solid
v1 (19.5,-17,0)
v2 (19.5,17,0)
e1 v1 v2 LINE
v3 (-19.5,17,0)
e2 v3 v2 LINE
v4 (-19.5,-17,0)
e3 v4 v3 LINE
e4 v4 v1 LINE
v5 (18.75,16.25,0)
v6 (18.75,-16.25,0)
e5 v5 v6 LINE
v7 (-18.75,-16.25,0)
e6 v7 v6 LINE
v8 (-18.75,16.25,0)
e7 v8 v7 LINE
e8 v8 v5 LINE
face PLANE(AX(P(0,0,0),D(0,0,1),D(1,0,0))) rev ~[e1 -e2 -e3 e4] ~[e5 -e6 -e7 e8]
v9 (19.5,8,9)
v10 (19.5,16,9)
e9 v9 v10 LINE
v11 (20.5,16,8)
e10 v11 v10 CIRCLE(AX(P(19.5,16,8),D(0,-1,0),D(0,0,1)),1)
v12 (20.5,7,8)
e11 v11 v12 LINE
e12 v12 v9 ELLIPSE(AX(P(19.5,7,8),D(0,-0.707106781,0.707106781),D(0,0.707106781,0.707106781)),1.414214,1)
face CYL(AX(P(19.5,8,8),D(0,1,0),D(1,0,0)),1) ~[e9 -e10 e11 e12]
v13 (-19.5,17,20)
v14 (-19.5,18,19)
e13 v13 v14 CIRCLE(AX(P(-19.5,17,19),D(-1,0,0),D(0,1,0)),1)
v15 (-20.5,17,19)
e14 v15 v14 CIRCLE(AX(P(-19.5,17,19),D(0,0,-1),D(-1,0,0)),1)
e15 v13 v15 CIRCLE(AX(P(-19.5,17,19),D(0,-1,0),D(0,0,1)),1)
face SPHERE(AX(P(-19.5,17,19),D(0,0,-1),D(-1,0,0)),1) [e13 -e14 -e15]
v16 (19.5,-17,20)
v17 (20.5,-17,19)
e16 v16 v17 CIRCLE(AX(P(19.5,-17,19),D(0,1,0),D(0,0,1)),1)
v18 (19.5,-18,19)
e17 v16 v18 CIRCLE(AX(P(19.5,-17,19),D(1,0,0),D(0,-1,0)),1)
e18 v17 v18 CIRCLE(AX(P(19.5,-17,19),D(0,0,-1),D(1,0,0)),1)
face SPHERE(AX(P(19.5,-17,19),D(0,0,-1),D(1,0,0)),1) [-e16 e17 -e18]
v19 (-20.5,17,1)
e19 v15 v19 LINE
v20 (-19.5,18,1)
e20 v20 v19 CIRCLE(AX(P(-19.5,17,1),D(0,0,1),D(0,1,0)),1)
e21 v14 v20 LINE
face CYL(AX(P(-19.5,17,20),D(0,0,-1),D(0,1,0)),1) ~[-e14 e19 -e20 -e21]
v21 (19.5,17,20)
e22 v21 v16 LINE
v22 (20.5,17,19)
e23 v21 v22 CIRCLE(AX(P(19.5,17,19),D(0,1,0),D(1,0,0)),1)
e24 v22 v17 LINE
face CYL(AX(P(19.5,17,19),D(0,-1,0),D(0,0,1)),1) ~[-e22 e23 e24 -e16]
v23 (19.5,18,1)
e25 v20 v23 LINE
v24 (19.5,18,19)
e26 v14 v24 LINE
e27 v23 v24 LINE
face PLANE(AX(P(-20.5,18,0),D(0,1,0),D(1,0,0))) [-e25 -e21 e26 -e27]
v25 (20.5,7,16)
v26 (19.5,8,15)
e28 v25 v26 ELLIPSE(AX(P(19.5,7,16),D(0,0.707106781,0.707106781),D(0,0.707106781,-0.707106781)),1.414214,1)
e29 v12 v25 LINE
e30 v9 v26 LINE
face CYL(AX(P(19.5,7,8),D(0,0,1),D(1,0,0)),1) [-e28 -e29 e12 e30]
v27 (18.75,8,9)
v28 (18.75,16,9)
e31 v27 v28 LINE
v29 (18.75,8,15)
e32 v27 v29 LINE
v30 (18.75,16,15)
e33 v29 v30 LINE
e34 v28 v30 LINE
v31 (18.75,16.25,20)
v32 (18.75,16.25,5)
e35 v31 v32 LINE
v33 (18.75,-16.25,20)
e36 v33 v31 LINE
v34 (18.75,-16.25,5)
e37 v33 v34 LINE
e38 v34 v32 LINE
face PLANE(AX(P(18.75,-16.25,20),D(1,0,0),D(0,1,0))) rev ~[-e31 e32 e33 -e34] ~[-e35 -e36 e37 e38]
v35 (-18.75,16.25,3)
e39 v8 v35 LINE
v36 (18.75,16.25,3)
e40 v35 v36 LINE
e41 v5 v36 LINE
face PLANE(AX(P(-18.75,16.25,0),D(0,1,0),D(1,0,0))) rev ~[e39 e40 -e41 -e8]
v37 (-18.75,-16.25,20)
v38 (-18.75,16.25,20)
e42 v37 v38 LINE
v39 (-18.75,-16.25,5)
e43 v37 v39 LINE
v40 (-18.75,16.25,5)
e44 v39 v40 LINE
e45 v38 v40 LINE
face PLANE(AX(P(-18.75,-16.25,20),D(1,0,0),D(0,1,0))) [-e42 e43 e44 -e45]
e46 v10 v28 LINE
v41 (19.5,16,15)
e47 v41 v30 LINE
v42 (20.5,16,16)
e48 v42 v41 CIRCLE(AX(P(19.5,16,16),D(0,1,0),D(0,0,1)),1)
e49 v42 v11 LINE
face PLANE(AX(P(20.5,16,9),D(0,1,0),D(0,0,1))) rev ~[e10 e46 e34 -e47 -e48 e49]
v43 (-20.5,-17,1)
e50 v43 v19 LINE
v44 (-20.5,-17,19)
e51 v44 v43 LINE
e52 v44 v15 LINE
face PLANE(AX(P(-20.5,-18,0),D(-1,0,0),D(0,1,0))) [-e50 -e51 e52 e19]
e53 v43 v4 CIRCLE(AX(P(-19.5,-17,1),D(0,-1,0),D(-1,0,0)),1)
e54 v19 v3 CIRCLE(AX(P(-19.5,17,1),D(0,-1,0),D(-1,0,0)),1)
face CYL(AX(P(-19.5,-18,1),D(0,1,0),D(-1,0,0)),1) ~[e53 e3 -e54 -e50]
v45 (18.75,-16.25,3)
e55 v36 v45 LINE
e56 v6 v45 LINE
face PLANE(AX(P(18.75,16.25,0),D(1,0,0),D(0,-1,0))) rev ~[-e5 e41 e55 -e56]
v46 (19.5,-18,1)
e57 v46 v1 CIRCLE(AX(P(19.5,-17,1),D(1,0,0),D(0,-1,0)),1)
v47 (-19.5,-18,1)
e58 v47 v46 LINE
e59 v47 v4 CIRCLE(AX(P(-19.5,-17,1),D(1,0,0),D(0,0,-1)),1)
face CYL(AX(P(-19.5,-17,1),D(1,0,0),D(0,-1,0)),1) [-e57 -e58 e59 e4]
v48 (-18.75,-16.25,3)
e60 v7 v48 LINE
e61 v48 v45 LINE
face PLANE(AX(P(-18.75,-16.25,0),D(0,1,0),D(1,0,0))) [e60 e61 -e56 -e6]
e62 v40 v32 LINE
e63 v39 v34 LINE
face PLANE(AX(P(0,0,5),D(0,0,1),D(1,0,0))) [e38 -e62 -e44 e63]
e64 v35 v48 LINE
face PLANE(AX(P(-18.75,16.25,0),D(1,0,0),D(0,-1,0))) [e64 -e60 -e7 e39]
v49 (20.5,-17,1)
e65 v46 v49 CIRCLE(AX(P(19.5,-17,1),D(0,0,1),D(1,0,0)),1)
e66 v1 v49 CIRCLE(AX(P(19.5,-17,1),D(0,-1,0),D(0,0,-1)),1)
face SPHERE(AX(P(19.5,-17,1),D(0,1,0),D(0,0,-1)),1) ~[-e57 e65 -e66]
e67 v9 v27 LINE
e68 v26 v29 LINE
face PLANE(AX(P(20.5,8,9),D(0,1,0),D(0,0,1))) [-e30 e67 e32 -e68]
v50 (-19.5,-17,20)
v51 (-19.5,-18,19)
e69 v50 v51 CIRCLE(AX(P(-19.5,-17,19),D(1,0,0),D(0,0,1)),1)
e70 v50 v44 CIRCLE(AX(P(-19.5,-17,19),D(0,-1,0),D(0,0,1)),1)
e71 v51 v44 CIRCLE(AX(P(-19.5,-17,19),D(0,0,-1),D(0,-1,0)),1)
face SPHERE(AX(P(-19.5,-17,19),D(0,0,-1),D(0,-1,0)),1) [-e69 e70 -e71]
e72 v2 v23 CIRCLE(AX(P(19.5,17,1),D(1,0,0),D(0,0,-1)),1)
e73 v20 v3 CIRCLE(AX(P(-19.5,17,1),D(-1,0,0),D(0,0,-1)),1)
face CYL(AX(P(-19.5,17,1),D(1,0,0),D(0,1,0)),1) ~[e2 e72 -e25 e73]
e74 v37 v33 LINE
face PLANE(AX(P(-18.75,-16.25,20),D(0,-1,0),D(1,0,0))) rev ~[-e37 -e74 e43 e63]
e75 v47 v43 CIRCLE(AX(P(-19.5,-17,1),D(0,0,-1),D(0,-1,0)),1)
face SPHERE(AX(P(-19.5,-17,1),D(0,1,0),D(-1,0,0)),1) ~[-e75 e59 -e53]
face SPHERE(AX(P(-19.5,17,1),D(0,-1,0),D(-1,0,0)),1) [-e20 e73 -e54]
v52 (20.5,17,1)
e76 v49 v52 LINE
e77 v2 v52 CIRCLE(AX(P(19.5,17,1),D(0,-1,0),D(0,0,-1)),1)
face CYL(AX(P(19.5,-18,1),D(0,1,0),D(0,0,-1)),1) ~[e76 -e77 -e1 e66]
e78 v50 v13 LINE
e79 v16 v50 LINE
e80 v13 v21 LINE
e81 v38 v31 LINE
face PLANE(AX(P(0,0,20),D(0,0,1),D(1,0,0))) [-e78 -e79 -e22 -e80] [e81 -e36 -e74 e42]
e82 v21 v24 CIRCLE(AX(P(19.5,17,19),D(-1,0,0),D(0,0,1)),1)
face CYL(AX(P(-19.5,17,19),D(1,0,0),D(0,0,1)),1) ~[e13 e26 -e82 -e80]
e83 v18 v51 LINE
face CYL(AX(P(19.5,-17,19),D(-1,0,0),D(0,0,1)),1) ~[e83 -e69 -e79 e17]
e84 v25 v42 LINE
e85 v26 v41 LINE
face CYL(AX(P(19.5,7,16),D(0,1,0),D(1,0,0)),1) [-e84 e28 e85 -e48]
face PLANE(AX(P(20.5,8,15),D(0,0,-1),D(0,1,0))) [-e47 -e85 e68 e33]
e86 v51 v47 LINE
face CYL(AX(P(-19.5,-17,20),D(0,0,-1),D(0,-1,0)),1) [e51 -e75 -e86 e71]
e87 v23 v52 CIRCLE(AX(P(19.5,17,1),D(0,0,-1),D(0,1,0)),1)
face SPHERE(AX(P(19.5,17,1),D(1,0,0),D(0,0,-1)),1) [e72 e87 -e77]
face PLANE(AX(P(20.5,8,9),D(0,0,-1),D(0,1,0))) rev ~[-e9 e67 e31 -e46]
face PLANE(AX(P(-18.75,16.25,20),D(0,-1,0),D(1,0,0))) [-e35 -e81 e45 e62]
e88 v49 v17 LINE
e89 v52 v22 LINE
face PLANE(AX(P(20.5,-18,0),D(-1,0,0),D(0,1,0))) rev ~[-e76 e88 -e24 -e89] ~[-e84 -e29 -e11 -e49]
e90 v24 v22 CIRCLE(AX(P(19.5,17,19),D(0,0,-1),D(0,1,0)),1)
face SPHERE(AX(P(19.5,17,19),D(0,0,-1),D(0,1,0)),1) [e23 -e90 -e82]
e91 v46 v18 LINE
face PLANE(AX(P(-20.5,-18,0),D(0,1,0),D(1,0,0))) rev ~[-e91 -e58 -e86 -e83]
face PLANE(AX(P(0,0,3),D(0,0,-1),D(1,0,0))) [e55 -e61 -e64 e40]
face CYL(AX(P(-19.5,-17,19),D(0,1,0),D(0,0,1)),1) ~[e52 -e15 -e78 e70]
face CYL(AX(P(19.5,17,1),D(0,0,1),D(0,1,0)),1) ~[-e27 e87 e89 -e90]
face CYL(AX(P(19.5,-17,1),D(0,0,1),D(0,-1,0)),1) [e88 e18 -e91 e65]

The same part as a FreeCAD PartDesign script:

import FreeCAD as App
import Part
import Sketcher

V = App.Vector
Q = App.Units.Quantity


def edges_at(feature, points):
    """Names of the edges that pass closest to the given points."""
    edges = feature.Shape.Edges
    near = lambda p: min(range(len(edges)), key=lambda i: edges[i].distToShape(Part.Vertex(*p))[0])
    return sorted({f"Edge{near(p) + 1}" for p in points})


def add_polygon(sketch, points):
    """Adds a closed chain of lines whose ends are joined by coincident constraints."""
    first, n = sketch.GeometryCount, len(points)
    for a, b in zip(points, points[1:] + points[:1]):
        sketch.addGeometry(Part.LineSegment(App.Vector(*a, 0), App.Vector(*b, 0)), False)
    for i in range(n):
        sketch.addConstraint(Sketcher.Constraint("Coincident", first + i, 2, first + (i + 1) % n, 1))

doc = App.newDocument("Part")
body = doc.addObject("PartDesign::Body", "Body")

sketch1 = body.newObject("Sketcher::SketchObject", "Sketch")
sketch1.AttachmentSupport = (doc.getObject("XY_Plane"), [""])
sketch1.MapMode = "FlatFace"
add_polygon(sketch1, [(-20, 18), (-20, -18), (20, -18), (20, 18)])
sketch1.addConstraint(Sketcher.Constraint("Vertical", 0))
sketch1.addConstraint(Sketcher.Constraint("Horizontal", 1))
sketch1.addConstraint(Sketcher.Constraint("Vertical", 2))
sketch1.addConstraint(Sketcher.Constraint("Horizontal", 3))
sketch1.addConstraint(Sketcher.Constraint("Symmetric", 0, 2, 2, 2, -1, 1))
sketch1.addConstraint(Sketcher.Constraint("DistanceX", 1, 1, 1, 2, Q("41 mm")))
sketch1.addConstraint(Sketcher.Constraint("DistanceY", 0, 2, 0, 1, Q("36 mm")))
pad1 = body.newObject("PartDesign::Pad", "Pad")
pad1.Profile = sketch1
pad1.Length = 20

sketch2 = body.newObject("Sketcher::SketchObject", "Sketch001")
sketch2.AttachmentSupport = (doc.getObject("XY_Plane"), [""])
sketch2.MapMode = "FlatFace"
sketch2.AttachmentOffset = App.Placement(V(0, 0, 20), App.Rotation())
add_polygon(sketch2, [(-19, 16), (-19, -16), (19, -16), (19, 16)])
sketch2.addConstraint(Sketcher.Constraint("Vertical", 0))
sketch2.addConstraint(Sketcher.Constraint("Horizontal", 1))
sketch2.addConstraint(Sketcher.Constraint("Vertical", 2))
sketch2.addConstraint(Sketcher.Constraint("Horizontal", 3))
sketch2.addConstraint(Sketcher.Constraint("Symmetric", 0, 2, 2, 2, -1, 1))
sketch2.addConstraint(Sketcher.Constraint("DistanceX", 1, 1, 1, 2, Q("37.5 mm")))
sketch2.addConstraint(Sketcher.Constraint("DistanceY", 0, 2, 0, 1, Q("32.5 mm")))
pocket1 = body.newObject("PartDesign::Pocket", "Pocket")
pocket1.Profile = sketch2
pocket1.Length = 15

sketch3 = body.newObject("Sketcher::SketchObject", "Sketch002")
sketch3.AttachmentSupport = (doc.getObject("XY_Plane"), [""])
sketch3.MapMode = "FlatFace"
add_polygon(sketch3, [(-19, -16), (-19, 16), (19, 16), (19, -16)])
sketch3.addConstraint(Sketcher.Constraint("Vertical", 0))
sketch3.addConstraint(Sketcher.Constraint("Horizontal", 1))
sketch3.addConstraint(Sketcher.Constraint("Vertical", 2))
sketch3.addConstraint(Sketcher.Constraint("Horizontal", 3))
sketch3.addConstraint(Sketcher.Constraint("Symmetric", 0, 2, 2, 2, -1, 1))
sketch3.addConstraint(Sketcher.Constraint("DistanceX", 1, 1, 1, 2, Q("37.5 mm")))
sketch3.addConstraint(Sketcher.Constraint("DistanceY", 0, 1, 0, 2, Q("32.5 mm")))
pocket2 = body.newObject("PartDesign::Pocket", "Pocket001")
pocket2.Profile = sketch3
pocket2.Length = 3
pocket2.Reversed = True

sketch4 = body.newObject("Sketcher::SketchObject", "Sketch003")
sketch4.AttachmentSupport = (doc.getObject("YZ_Plane"), [""])
sketch4.MapMode = "FlatFace"
sketch4.AttachmentOffset = App.Placement(V(0, 0, 20.5), App.Rotation())
add_polygon(sketch4, [(8, 15), (8, 9), (16, 9), (16, 15)])
sketch4.addConstraint(Sketcher.Constraint("Vertical", 0))
sketch4.addConstraint(Sketcher.Constraint("Horizontal", 1))
sketch4.addConstraint(Sketcher.Constraint("Vertical", 2))
sketch4.addConstraint(Sketcher.Constraint("Horizontal", 3))
sketch4.addConstraint(Sketcher.Constraint("DistanceX", 1, 1, 1, 2, Q("8 mm")))
sketch4.addConstraint(Sketcher.Constraint("DistanceY", 0, 2, 0, 1, Q("6 mm")))
sketch4.addConstraint(Sketcher.Constraint("DistanceX", -1, 1, 0, 2, Q("8 mm")))
sketch4.addConstraint(Sketcher.Constraint("DistanceY", -1, 1, 0, 2, Q("9 mm")))
pocket3 = body.newObject("PartDesign::Pocket", "Pocket002")
pocket3.Profile = sketch4
pocket3.Length = 5
doc.recompute()

fillet = body.newObject("PartDesign::Fillet", "Fillet")
fillet.Base = (pocket3, edges_at(pocket3, [(-20.5, 0, 0)]))
fillet.Radius = 1
doc.recompute()

fillet2 = body.newObject("PartDesign::Fillet", "Fillet001")
fillet2.Base = (fillet, edges_at(fillet, [(0.5, 18, 0)]))
fillet2.Radius = 1
doc.recompute()

fillet3 = body.newObject("PartDesign::Fillet", "Fillet002")
fillet3.Base = (fillet2, edges_at(fillet2, [(20.5, -0.5, 0)]))
fillet3.Radius = 1
doc.recompute()

fillet4 = body.newObject("PartDesign::Fillet", "Fillet003")
fillet4.Base = (fillet3, edges_at(fillet3, [(0, -18, 0)]))
fillet4.Radius = 1
doc.recompute()

fillet5 = body.newObject("PartDesign::Fillet", "Fillet004")
fillet5.Base = (fillet4, edges_at(fillet4, [(-20.5, 0, 20)]))
fillet5.Radius = 1
doc.recompute()

fillet6 = body.newObject("PartDesign::Fillet", "Fillet005")
fillet6.Base = (fillet5, edges_at(fillet5, [(20.5, 12, 9)]))
fillet6.Radius = 1
doc.recompute()

fillet7 = body.newObject("PartDesign::Fillet", "Fillet006")
fillet7.Base = (fillet6, edges_at(fillet6, [(20.5, 8, 11.5)]))
fillet7.Radius = 1
doc.recompute()

fillet8 = body.newObject("PartDesign::Fillet", "Fillet007")
fillet8.Base = (fillet7, edges_at(fillet7, [(20.5, 11.5, 15)]))
fillet8.Radius = 1

doc.recompute()
